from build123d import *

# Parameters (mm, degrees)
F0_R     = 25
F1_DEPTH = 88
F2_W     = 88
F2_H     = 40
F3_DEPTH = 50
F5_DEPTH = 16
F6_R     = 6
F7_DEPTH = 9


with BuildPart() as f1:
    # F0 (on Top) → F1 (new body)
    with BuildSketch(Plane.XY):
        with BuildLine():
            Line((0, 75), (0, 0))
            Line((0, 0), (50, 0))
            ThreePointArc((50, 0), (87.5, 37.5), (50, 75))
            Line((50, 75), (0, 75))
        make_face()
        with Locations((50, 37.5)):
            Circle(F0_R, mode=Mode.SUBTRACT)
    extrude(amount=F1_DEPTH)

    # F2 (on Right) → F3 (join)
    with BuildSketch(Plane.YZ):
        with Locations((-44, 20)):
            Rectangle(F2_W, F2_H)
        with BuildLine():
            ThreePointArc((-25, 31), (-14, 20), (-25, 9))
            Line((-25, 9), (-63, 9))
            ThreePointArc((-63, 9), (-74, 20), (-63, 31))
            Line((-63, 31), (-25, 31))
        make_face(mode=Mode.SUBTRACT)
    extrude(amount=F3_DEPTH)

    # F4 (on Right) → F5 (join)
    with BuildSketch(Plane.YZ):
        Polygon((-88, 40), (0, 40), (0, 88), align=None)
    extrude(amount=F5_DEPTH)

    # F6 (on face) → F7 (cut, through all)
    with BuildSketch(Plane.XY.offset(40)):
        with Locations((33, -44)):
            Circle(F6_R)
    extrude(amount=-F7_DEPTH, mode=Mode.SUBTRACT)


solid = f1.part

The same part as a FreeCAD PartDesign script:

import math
import FreeCAD as App
import Part
import Sketcher

V = App.Vector
Q = App.Units.Quantity


def add_polygon(sketch, points):
    """Adds a closed chain of lines whose ends are joined by coincident constraints."""
    first, n = sketch.GeometryCount, len(points)
    for a, b in zip(points, points[1:] + points[:1]):
        sketch.addGeometry(Part.LineSegment(App.Vector(*a, 0), App.Vector(*b, 0)), False)
    for i in range(n):
        sketch.addConstraint(Sketcher.Constraint("Coincident", first + i, 2, first + (i + 1) % n, 1))

doc = App.newDocument("Part")
body = doc.addObject("PartDesign::Body", "Body")

# Sketch on XY plane
sketch1 = doc.addObject("Sketcher::SketchObject", "Sketch")
body.addObject(sketch1)
sketch1.AttachmentSupport = (doc.XY_Plane, [""])
sketch1.MapMode = "FlatFace"
sketch1.addGeometry([
    Part.LineSegment(V(0, 75, 0), V(0, 0, 0)),  # 0
    Part.LineSegment(V(0, 0, 0), V(50, 0, 0)),  # 1
    Part.ArcOfCircle(Part.Circle(V(50, 38, 0), V(0, 0, 1), 38), math.radians(-90), math.radians(90)),  # 2
    Part.LineSegment(V(50, 75, 0), V(0, 75, 0)),  # 3
    Part.Circle(V(50, 38, 0), V(0, 0, 1), 25),  # 4
], False)
sketch1.addConstraint([
    Sketcher.Constraint("Coincident", 0, 2, 1, 1),
    Sketcher.Constraint("Tangent", 1, 2, 2, 1),
    Sketcher.Constraint("Tangent", 2, 2, 3, 1),
    Sketcher.Constraint("Coincident", 3, 2, 0, 1),
    Sketcher.Constraint("Vertical", 0),
    Sketcher.Constraint("Horizontal", 1),
    Sketcher.Constraint("Horizontal", 3),
    Sketcher.Constraint("Coincident", 0, 2, -1, 1),
    Sketcher.Constraint("Coincident", 4, 3, 2, 3),
    Sketcher.Constraint("Diameter", 4, Q("50 mm")),
    Sketcher.Constraint("Radius", 2, Q("37.5 mm")),
    Sketcher.Constraint("DistanceX", 1, 1, 1, 2, Q("50 mm")),
])
pad1 = doc.addObject("PartDesign::Pad", "Pad")
body.addObject(pad1)
pad1.Profile = sketch1
pad1.Length = 88

# Sketch on YZ plane
sketch2 = doc.addObject("Sketcher::SketchObject", "Sketch001")
body.addObject(sketch2)
sketch2.AttachmentSupport = (doc.YZ_Plane, [""])
sketch2.MapMode = "FlatFace"
add_polygon(sketch2, [(-88, 40), (-88, 0), (0, 0), (0, 40)])  # lines 0-3
sketch2.addGeometry(Part.LineSegment(V(-63, 31, 0), V(-25, 31, 0)), False)  # 4
sketch2.addGeometry(Part.ArcOfCircle(Part.Circle(V(-25, 20, 0), V(0, 0, 1), 11), math.radians(-90), math.radians(90)), False)  # 5
sketch2.addGeometry(Part.LineSegment(V(-25, 9, 0), V(-63, 9, 0)), False)  # 6
sketch2.addGeometry(Part.ArcOfCircle(Part.Circle(V(-63, 20, 0), V(0, 0, 1), 11), math.radians(90), math.radians(270)), False)  # 7
sketch2.addConstraint([
    Sketcher.Constraint("Tangent", 4, 2, 5, 2),
    Sketcher.Constraint("Tangent", 5, 1, 6, 1),
    Sketcher.Constraint("Tangent", 6, 2, 7, 2),
    Sketcher.Constraint("Tangent", 7, 1, 4, 1),
    Sketcher.Constraint("Vertical", 0),
    Sketcher.Constraint("Horizontal", 1),
    Sketcher.Constraint("Vertical", 2),
    Sketcher.Constraint("Horizontal", 3),
    Sketcher.Constraint("Horizontal", 4),
    Sketcher.Constraint("Horizontal", 6),
    Sketcher.Constraint("Coincident", 1, 2, -1, 1),
    Sketcher.Constraint("Radius", 5, Q("11 mm")),
    Sketcher.Constraint("DistanceX", 1, 1, 1, 2, Q("88 mm")),
    Sketcher.Constraint("DistanceX", 4, 1, 4, 2, Q("38 mm")),
    Sketcher.Constraint("DistanceY", 0, 2, 0, 1, Q("40 mm")),
    Sketcher.Constraint("DistanceX", 5, 3, -1, 1, Q("25 mm")),
    Sketcher.Constraint("DistanceY", -1, 1, 5, 3, Q("20 mm")),
])
pad2 = doc.addObject("PartDesign::Pad", "Pad001")
body.addObject(pad2)
pad2.Profile = sketch2
pad2.Length = 50

# Sketch on YZ plane
sketch3 = doc.addObject("Sketcher::SketchObject", "Sketch002")
body.addObject(sketch3)
sketch3.AttachmentSupport = (doc.YZ_Plane, [""])
sketch3.MapMode = "FlatFace"
add_polygon(sketch3, [(-88, 40), (0, 40), (0, 88)])  # lines 0-2
sketch3.addConstraint([
    Sketcher.Constraint("Horizontal", 0),
    Sketcher.Constraint("Vertical", 1),
    Sketcher.Constraint("PointOnObject", 0, 2, -2),
    Sketcher.Constraint("DistanceX", 0, 1, 0, 2, Q("88 mm")),
    Sketcher.Constraint("DistanceY", 1, 1, 1, 2, Q("48 mm")),
    Sketcher.Constraint("DistanceY", -1, 1, 0, 2, Q("40 mm")),
])
pad3 = doc.addObject("PartDesign::Pad", "Pad002")
body.addObject(pad3)
pad3.Profile = sketch3
pad3.Length = 16

# Sketch on XY plane
sketch4 = doc.addObject("Sketcher::SketchObject", "Sketch003")
body.addObject(sketch4)
sketch4.AttachmentSupport = (doc.XY_Plane, [""])
sketch4.MapMode = "FlatFace"
sketch4.AttachmentOffset = App.Placement(V(0, 0, 40), App.Rotation())
sketch4.addGeometry(Part.Circle(V(33, -44, 0), V(0, 0, 1), 6), False)
sketch4.addConstraint([
    Sketcher.Constraint("Diameter", 0, Q("12 mm")),
    Sketcher.Constraint("DistanceX", -1, 1, 0, 3, Q("33 mm")),
    Sketcher.Constraint("DistanceY", 0, 3, -1, 1, Q("44 mm")),
])
pocket1 = doc.addObject("PartDesign::Pocket", "Pocket")
body.addObject(pocket1)
pocket1.Profile = sketch4
pocket1.Length = 9

doc.recompute()
